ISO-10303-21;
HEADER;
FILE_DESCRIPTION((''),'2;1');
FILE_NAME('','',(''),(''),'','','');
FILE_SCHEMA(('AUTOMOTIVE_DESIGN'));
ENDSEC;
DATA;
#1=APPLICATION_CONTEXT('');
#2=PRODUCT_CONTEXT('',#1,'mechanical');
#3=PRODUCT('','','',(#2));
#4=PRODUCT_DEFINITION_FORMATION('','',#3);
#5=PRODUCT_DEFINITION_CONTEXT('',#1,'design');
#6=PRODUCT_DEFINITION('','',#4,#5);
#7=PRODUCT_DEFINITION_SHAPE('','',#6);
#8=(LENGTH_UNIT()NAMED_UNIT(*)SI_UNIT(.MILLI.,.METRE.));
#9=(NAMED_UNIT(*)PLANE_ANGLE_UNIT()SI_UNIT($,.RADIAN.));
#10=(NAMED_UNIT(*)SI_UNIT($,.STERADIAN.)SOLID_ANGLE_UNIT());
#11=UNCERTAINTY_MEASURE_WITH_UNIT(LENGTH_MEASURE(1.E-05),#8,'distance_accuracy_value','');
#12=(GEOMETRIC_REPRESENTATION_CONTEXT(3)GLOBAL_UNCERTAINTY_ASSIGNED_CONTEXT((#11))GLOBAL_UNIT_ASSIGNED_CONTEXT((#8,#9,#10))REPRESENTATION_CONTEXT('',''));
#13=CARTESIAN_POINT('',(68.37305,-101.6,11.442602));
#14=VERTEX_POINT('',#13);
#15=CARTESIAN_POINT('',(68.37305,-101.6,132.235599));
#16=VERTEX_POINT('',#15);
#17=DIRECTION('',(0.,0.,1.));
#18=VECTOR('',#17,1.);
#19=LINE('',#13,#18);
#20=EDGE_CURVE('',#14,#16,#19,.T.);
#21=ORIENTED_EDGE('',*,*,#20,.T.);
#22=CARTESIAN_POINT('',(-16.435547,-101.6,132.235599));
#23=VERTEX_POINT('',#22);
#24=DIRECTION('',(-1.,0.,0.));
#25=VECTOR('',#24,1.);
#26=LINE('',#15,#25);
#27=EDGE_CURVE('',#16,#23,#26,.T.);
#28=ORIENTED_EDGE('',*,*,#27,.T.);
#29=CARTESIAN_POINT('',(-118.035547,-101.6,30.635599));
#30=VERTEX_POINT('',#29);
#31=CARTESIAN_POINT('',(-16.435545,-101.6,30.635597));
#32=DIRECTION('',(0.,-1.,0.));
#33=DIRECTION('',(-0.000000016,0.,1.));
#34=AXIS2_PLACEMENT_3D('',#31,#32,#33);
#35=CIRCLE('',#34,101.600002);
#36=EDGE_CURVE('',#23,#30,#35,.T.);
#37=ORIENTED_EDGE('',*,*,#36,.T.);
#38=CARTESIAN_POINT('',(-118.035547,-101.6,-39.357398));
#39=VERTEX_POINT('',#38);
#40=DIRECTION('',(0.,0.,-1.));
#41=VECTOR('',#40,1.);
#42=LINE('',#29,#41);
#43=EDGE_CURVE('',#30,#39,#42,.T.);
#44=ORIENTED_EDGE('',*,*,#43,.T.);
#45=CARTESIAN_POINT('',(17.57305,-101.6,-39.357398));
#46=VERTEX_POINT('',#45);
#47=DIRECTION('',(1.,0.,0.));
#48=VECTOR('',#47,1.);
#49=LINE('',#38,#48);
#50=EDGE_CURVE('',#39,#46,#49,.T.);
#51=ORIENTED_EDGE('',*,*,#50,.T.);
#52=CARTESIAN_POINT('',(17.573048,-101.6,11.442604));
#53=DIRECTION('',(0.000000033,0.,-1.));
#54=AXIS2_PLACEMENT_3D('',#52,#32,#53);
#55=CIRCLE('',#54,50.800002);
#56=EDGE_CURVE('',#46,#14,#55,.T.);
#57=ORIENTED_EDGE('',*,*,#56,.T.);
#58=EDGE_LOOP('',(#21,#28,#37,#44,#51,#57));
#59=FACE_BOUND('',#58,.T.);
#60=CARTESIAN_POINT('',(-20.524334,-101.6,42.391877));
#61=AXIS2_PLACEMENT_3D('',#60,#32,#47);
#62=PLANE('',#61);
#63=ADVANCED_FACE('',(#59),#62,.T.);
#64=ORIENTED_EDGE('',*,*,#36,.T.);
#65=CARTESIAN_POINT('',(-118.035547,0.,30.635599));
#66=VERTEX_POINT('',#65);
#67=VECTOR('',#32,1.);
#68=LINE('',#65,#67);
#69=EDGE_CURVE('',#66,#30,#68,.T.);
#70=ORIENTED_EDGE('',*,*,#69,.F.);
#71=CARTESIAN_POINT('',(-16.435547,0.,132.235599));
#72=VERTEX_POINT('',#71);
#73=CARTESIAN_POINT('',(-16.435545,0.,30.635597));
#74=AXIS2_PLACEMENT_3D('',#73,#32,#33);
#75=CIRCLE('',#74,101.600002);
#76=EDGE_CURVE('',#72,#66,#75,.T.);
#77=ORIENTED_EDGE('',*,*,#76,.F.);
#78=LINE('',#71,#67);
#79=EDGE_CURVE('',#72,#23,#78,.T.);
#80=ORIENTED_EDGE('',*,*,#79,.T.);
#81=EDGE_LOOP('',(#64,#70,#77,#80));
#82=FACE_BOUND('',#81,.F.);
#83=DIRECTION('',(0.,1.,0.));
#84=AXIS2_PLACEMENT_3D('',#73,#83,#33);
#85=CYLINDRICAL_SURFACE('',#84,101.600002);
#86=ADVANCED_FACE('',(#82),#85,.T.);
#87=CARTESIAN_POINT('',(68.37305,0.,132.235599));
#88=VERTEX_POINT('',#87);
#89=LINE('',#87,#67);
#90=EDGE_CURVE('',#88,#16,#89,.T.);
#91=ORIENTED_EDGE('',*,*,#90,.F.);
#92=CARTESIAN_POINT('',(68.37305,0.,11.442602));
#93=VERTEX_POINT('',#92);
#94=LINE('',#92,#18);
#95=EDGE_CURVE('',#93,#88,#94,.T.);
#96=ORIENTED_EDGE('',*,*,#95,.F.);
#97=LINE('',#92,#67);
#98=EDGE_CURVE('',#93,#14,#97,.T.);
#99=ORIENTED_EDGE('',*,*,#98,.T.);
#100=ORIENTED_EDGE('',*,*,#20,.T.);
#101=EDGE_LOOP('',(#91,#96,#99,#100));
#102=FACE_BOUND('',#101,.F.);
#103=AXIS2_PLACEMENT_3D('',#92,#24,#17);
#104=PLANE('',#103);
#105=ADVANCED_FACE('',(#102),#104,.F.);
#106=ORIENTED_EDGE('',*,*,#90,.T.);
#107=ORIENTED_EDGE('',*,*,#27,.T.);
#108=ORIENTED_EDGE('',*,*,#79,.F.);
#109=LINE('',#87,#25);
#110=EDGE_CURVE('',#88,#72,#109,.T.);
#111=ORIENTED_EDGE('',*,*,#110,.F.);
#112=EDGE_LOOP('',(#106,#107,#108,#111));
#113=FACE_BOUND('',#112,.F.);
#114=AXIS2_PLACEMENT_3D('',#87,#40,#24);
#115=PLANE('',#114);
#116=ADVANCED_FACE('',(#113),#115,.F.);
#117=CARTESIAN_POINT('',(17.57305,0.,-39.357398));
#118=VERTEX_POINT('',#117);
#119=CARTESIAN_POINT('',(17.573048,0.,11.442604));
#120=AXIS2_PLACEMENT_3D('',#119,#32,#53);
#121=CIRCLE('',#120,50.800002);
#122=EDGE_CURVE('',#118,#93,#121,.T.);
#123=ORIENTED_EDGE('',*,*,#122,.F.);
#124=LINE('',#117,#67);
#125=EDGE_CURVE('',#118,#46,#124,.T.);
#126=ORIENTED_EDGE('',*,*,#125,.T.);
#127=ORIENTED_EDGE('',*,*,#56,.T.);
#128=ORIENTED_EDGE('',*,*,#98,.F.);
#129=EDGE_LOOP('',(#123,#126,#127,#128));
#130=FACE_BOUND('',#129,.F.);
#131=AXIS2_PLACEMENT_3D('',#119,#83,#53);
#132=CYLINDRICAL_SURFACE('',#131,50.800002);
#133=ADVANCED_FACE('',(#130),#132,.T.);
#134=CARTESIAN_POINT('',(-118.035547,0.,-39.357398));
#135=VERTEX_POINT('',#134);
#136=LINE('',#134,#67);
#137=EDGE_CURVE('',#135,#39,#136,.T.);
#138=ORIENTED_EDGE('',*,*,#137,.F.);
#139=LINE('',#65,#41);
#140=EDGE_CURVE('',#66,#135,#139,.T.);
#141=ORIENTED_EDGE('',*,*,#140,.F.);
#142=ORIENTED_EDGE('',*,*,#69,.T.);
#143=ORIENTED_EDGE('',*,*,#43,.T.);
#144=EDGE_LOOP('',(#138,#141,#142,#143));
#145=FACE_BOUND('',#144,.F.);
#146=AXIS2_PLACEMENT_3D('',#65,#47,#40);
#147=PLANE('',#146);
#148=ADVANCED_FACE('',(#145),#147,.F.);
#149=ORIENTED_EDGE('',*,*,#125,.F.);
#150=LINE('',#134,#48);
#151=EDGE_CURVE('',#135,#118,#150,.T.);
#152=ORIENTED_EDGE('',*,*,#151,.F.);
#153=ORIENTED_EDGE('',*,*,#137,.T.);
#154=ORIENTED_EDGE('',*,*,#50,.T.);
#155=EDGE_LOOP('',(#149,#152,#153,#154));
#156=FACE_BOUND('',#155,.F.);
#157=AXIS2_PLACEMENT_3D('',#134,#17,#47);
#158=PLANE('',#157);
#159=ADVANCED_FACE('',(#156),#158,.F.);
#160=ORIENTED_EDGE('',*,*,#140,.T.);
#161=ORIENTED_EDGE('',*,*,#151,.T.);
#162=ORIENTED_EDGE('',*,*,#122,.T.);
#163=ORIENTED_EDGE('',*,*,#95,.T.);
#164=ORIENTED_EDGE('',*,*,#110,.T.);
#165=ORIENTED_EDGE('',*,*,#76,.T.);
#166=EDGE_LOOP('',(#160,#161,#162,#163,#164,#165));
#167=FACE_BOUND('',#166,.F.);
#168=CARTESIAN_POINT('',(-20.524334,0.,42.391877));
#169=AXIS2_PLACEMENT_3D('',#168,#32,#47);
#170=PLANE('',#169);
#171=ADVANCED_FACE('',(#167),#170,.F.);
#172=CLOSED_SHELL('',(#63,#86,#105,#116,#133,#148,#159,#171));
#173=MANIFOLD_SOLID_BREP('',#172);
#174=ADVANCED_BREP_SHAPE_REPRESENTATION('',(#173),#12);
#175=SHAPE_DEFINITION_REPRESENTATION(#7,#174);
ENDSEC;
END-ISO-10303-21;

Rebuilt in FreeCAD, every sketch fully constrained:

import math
import FreeCAD as App
import Part
import Sketcher
from FreeCAD import Vector
Q = App.Units.Quantity

doc = App.newDocument("Part")
body = doc.addObject("PartDesign::Body", "Body")

# Sketch on XZ plane
sketch1 = body.newObject("Sketcher::SketchObject", "Sketch")
sketch1.AttachmentSupport = (doc.getObject("XZ_Plane"), [""])
sketch1.MapMode = "FlatFace"
sketch1.addGeometry(Part.LineSegment(Vector(68, 132, 0), Vector(-16, 132, 0)), False)
sketch1.addGeometry(Part.ArcOfCircle(Part.Circle(Vector(-16, 31, 0), Vector(0, 0, 1), 102), math.radians(90), math.radians(180)), False)
sketch1.addGeometry(Part.LineSegment(Vector(-118, 31, 0), Vector(-118, -39, 0)), False)
sketch1.addGeometry(Part.LineSegment(Vector(-118, -39, 0), Vector(18, -39, 0)), False)
sketch1.addGeometry(Part.ArcOfCircle(Part.Circle(Vector(18, 11, 0), Vector(0, 0, 1), 51), math.radians(-90), math.radians(0)), False)
sketch1.addGeometry(Part.LineSegment(Vector(68, 11, 0), Vector(68, 132, 0)), False)
sketch1.addConstraint(Sketcher.Constraint("Tangent", 0, 2, 1, 1))
sketch1.addConstraint(Sketcher.Constraint("Tangent", 1, 2, 2, 1))
sketch1.addConstraint(Sketcher.Constraint("Coincident", 2, 2, 3, 1))
sketch1.addConstraint(Sketcher.Constraint("Tangent", 3, 2, 4, 1))
sketch1.addConstraint(Sketcher.Constraint("Tangent", 4, 2, 5, 1))
sketch1.addConstraint(Sketcher.Constraint("Coincident", 5, 2, 0, 1))
sketch1.addConstraint(Sketcher.Constraint("Horizontal", 0))
sketch1.addConstraint(Sketcher.Constraint("Vertical", 2))
sketch1.addConstraint(Sketcher.Constraint("Horizontal", 3))
sketch1.addConstraint(Sketcher.Constraint("Vertical", 5))
sketch1.addConstraint(Sketcher.Constraint("Radius", 1, Q("4.0000001 in")))
sketch1.addConstraint(Sketcher.Constraint("Radius", 4, Q("2.0000001 in")))
sketch1.addConstraint(Sketcher.Constraint("DistanceY", -1, 1, 0, 2, Q("132.235599 mm")))
sketch1.addConstraint(Sketcher.Constraint("DistanceY", 2, 2, -1, 1, Q("39.357398 mm")))
sketch1.addConstraint(Sketcher.Constraint("DistanceX", 0, 2, 0, 1, Q("84.808597 mm")))
sketch1.addConstraint(Sketcher.Constraint("DistanceX", -1, 1, 4, 3, Q("17.573048 mm")))
pad1 = body.newObject("PartDesign::Pad", "Pad")
pad1.Profile = sketch1
pad1.Length = Q("4 in")

doc.recompute()
